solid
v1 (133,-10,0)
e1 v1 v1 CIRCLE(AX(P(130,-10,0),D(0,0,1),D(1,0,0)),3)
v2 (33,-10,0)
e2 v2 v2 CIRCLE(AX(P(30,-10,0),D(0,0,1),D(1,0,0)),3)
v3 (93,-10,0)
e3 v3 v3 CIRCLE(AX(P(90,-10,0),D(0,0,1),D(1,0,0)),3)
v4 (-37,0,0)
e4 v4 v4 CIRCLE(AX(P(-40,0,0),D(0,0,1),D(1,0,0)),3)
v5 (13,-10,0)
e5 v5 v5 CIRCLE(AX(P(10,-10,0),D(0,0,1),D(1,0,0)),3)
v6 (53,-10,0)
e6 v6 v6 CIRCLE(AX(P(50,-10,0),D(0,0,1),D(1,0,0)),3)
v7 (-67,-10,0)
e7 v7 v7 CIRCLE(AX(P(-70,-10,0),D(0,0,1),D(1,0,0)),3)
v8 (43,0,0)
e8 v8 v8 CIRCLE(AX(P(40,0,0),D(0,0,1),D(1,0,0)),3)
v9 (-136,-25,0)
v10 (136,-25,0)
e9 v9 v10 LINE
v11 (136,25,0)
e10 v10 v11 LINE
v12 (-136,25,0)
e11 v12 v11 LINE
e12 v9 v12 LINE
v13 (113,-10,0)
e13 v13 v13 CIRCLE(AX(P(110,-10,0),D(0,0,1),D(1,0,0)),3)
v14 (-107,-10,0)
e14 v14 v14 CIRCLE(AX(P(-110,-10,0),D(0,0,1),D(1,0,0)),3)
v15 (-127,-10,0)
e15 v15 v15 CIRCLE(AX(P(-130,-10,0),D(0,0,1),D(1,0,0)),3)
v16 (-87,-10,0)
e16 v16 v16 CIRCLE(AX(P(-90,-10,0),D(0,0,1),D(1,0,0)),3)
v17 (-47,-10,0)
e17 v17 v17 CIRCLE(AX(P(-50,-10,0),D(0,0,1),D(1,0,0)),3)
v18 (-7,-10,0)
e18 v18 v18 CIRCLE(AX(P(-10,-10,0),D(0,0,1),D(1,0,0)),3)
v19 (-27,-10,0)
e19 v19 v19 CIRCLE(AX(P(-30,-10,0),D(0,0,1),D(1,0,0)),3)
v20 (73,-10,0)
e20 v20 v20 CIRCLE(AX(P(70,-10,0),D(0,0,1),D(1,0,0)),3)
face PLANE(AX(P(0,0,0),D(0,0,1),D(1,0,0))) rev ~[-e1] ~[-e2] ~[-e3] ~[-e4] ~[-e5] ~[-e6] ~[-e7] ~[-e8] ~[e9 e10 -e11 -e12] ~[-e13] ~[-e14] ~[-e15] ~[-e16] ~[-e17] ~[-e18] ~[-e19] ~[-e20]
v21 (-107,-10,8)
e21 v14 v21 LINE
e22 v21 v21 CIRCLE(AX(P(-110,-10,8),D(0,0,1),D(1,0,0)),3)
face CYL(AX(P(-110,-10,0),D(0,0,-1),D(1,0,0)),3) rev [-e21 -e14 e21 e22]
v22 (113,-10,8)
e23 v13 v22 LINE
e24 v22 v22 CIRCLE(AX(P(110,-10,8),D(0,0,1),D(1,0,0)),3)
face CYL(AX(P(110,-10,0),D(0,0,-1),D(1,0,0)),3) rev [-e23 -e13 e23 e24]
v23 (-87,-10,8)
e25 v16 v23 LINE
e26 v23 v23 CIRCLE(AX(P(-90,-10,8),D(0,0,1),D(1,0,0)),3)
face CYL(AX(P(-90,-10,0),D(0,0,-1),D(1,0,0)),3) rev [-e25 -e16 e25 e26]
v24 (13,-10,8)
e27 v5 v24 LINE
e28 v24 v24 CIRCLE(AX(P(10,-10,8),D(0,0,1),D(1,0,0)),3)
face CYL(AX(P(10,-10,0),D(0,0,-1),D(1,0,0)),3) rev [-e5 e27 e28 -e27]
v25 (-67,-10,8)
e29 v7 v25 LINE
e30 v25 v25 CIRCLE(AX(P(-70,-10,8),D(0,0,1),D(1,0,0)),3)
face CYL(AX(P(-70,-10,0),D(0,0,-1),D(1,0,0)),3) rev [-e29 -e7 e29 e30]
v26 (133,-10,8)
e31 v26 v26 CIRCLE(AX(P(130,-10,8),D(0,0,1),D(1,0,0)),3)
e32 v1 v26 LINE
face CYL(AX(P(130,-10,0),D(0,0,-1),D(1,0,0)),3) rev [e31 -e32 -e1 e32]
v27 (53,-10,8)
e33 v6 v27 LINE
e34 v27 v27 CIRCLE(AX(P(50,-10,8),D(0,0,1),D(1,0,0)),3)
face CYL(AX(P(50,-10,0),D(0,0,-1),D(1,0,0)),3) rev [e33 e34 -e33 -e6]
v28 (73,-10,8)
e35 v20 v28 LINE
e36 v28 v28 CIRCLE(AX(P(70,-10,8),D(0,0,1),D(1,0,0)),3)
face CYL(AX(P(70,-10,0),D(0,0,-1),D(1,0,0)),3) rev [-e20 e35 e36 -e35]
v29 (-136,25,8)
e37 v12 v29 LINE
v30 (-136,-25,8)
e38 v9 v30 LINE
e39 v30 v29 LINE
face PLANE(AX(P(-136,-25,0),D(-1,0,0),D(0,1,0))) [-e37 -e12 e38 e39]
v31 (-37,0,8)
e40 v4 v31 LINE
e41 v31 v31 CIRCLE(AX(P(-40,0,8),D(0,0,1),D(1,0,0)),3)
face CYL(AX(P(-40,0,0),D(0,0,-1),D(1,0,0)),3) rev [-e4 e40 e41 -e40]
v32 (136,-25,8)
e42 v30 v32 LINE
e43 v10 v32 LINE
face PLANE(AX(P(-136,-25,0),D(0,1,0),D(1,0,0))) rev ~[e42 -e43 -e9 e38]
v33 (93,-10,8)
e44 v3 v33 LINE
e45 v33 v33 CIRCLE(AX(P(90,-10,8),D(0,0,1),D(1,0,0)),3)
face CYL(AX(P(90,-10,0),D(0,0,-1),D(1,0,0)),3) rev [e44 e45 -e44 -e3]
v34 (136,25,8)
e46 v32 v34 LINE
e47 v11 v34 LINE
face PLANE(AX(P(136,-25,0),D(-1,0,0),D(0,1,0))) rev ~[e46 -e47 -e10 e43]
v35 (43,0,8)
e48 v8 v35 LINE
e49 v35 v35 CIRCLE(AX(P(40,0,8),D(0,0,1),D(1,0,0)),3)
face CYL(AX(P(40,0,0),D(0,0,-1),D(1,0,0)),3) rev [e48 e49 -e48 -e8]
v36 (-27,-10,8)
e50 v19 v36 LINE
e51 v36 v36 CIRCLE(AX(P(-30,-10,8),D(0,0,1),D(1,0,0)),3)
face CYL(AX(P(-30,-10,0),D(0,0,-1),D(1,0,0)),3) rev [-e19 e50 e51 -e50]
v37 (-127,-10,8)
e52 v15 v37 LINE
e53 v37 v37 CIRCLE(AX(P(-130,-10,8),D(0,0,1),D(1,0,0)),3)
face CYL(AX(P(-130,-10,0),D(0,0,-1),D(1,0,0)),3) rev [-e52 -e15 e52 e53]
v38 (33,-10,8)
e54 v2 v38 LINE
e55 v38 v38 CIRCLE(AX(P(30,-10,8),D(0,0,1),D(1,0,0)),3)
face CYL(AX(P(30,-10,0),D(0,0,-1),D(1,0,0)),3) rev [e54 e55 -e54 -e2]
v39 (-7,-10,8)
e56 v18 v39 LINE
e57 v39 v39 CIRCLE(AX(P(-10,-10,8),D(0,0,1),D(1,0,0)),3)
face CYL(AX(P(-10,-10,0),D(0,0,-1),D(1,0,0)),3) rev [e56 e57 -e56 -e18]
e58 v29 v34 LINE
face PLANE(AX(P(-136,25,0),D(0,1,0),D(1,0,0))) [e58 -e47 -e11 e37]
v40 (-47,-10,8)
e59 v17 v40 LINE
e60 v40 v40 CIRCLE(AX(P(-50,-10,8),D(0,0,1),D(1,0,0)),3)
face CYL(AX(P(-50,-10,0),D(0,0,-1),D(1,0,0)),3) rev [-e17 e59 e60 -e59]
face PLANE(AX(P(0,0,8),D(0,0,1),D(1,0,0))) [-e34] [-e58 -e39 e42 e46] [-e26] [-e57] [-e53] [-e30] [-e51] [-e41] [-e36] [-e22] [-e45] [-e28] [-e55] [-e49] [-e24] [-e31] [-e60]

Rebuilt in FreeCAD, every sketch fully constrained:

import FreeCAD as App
import Part
import Sketcher
from FreeCAD import Vector

doc = App.newDocument("Part")
params = doc.addObject("Spreadsheet::Sheet", "Params")
for row, (alias, value) in enumerate([
    ("sketch1_diameter", "6 mm"),
    ("sketch1_width", "272 mm"),
    ("sketch1_height", "50 mm"),
    ("pad1_length", "8 mm"),
], start=1):
    params.set(f"A{row}", alias)
    params.set(f"B{row}", "=" + value)
    params.setAlias(f"B{row}", alias)

body = doc.addObject("PartDesign::Body", "Body")

sketch1 = body.newObject("Sketcher::SketchObject", "Sketch")
sketch1.AttachmentSupport = (doc.getObject("XY_Plane"), [""])
sketch1.MapMode = "FlatFace"
sketch1.addGeometry([
    Part.LineSegment(Vector(-136, 25, 0), Vector(-136, -25, 0)),
    Part.LineSegment(Vector(-136, -25, 0), Vector(136, -25, 0)),
    Part.LineSegment(Vector(136, -25, 0), Vector(136, 25, 0)),
    Part.LineSegment(Vector(136, 25, 0), Vector(-136, 25, 0)),
    Part.Circle(Vector(-130, -10, 0), Vector(0, 0, 1), 3),
    Part.Circle(Vector(-110, -10, 0), Vector(0, 0, 1), 3),
    Part.Circle(Vector(-90, -10, 0), Vector(0, 0, 1), 3),
    Part.Circle(Vector(-70, -10, 0), Vector(0, 0, 1), 3),
    Part.Circle(Vector(-50, -10, 0), Vector(0, 0, 1), 3),
    Part.Circle(Vector(-30, -10, 0), Vector(0, 0, 1), 3),
    Part.Circle(Vector(-10, -10, 0), Vector(0, 0, 1), 3),
    Part.Circle(Vector(10, -10, 0), Vector(0, 0, 1), 3),
    Part.Circle(Vector(30, -10, 0), Vector(0, 0, 1), 3),
    Part.Circle(Vector(50, -10, 0), Vector(0, 0, 1), 3),
    Part.Circle(Vector(70, -10, 0), Vector(0, 0, 1), 3),
    Part.Circle(Vector(90, -10, 0), Vector(0, 0, 1), 3),
    Part.Circle(Vector(110, -10, 0), Vector(0, 0, 1), 3),
    Part.Circle(Vector(130, -10, 0), Vector(0, 0, 1), 3),
    Part.Circle(Vector(-40, 0, 0), Vector(0, 0, 1), 3),
    Part.Circle(Vector(40, 0, 0), Vector(0, 0, 1), 3),
], False)
sketch1.addConstraint([
    Sketcher.Constraint("Coincident", 0, 2, 1, 1),
    Sketcher.Constraint("Coincident", 1, 2, 2, 1),
    Sketcher.Constraint("Coincident", 2, 2, 3, 1),
    Sketcher.Constraint("Coincident", 3, 2, 0, 1),
    Sketcher.Constraint("Vertical", 0),
    Sketcher.Constraint("Horizontal", 1),
    Sketcher.Constraint("Vertical", 2),
    Sketcher.Constraint("Horizontal", 3),
    Sketcher.Constraint("Equal", 4, 5),
    Sketcher.Constraint("Equal", 5, 6),
    Sketcher.Constraint("Equal", 6, 7),
    Sketcher.Constraint("Equal", 7, 8),
    Sketcher.Constraint("Equal", 8, 9),
    Sketcher.Constraint("Equal", 9, 10),
    Sketcher.Constraint("Equal", 10, 11),
    Sketcher.Constraint("Equal", 11, 12),
    Sketcher.Constraint("Equal", 12, 13),
    Sketcher.Constraint("Equal", 13, 14),
    Sketcher.Constraint("Equal", 14, 15),
    Sketcher.Constraint("Equal", 15, 16),
    Sketcher.Constraint("Equal", 16, 17),
    Sketcher.Constraint("Equal", 17, 18),
    Sketcher.Constraint("Equal", 18, 19),
    Sketcher.Constraint("Symmetric", 18, 3, 19, 3, -1, 1),
    Sketcher.Constraint("Symmetric", 0, 2, 2, 2, -1, 1),
    Sketcher.Constraint("Symmetric", 10, 3, 11, 3, -2),
    Sketcher.Constraint("Symmetric", 9, 3, 12, 3, -2),
    Sketcher.Constraint("Symmetric", 8, 3, 13, 3, -2),
    Sketcher.Constraint("Symmetric", 7, 3, 14, 3, -2),
    Sketcher.Constraint("Symmetric", 6, 3, 15, 3, -2),
    Sketcher.Constraint("Symmetric", 5, 3, 16, 3, -2),
    Sketcher.Constraint("Symmetric", 4, 3, 17, 3, -2),
    Sketcher.Constraint("PointOnObject", 18, 3, -1),
    Sketcher.Constraint("Horizontal", 4, 3, 5, 3),
    Sketcher.Constraint("Horizontal", 5, 3, 6, 3),
    Sketcher.Constraint("Horizontal", 6, 3, 7, 3),
    Sketcher.Constraint("Horizontal", 7, 3, 8, 3),
    Sketcher.Constraint("Horizontal", 8, 3, 9, 3),
    Sketcher.Constraint("Horizontal", 9, 3, 10, 3),
    Sketcher.Constraint("Diameter", 4, 6.0),
    Sketcher.Constraint("DistanceX", 1, 1, 1, 2, 272.0),
    Sketcher.Constraint("DistanceY", 0, 2, 0, 1, 50.0),
    Sketcher.Constraint("DistanceX", 4, 3, -1, 1, 130.0),
    Sketcher.Constraint("DistanceY", 4, 3, -1, 1, 10.0),
    Sketcher.Constraint("DistanceX", 5, 3, -1, 1, 110.0),
    Sketcher.Constraint("DistanceX", 6, 3, -1, 1, 90.0),
    Sketcher.Constraint("DistanceX", 7, 3, -1, 1, 70.0),
    Sketcher.Constraint("DistanceX", 8, 3, -1, 1, 50.0),
    Sketcher.Constraint("DistanceX", 9, 3, -1, 1, 30.0),
    Sketcher.Constraint("DistanceX", 10, 3, -1, 1, 10.0),
    Sketcher.Constraint("DistanceX", 18, 3, -1, 1, 40.0),
])
sketch1.setExpression("Constraints[39]", "Params.sketch1_diameter")
sketch1.setExpression("Constraints[40]", "Params.sketch1_width")
sketch1.setExpression("Constraints[41]", "Params.sketch1_height")
pad1 = body.newObject("PartDesign::Pad", "Pad")
pad1.Profile = sketch1
pad1.setExpression("Length", "Params.pad1_length")

doc.recompute()
